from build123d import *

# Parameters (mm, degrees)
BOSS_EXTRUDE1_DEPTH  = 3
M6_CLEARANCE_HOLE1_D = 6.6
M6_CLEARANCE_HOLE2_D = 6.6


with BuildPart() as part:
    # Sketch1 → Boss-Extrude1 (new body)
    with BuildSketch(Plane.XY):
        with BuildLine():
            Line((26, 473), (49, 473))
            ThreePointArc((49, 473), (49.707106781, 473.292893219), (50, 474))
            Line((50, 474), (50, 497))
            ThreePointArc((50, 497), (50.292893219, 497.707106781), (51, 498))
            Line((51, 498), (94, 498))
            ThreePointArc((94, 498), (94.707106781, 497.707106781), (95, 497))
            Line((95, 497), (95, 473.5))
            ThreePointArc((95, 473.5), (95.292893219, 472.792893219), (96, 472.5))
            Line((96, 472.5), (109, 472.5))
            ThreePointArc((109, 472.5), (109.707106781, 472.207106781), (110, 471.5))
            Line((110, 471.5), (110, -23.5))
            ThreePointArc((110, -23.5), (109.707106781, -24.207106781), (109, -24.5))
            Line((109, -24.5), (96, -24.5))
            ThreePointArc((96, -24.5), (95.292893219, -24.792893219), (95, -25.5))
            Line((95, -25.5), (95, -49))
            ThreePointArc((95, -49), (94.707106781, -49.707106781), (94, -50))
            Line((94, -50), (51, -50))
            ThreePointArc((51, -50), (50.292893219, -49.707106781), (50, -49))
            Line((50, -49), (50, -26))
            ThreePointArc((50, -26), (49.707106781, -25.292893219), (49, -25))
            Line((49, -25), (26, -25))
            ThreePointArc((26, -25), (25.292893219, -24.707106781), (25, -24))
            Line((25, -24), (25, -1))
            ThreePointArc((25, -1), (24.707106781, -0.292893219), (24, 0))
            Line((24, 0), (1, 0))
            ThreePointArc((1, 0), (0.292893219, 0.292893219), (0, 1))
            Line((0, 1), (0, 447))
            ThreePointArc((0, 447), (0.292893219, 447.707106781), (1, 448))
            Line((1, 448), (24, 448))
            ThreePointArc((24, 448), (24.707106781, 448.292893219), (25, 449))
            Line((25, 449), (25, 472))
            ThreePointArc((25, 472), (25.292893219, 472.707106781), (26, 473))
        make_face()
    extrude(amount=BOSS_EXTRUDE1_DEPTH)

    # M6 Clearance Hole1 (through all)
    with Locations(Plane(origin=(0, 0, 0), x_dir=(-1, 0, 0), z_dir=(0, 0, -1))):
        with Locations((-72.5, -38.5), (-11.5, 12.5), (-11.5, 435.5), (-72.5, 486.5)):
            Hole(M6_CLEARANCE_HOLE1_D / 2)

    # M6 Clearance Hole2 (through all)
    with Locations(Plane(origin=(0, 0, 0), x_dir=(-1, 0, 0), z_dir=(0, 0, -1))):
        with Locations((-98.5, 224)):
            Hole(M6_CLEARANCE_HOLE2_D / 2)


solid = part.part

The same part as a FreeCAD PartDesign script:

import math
import FreeCAD as App
import Part
import Sketcher

V = App.Vector
Q = App.Units.Quantity

doc = App.newDocument("Part")
params = doc.addObject("Spreadsheet::Sheet", "Params")
for row, (alias, value) in enumerate([
    ("sketch1_radius", "1 mm"),
    ("sketch1_width", "23 mm"),
    ("sketch1_width2", "43 mm"),
    ("sketch1_width3", "13 mm"),
    ("sketch1_height", "446 mm"),
    ("pad1_length", "3 mm"),
    ("sketch2_diameter", "6.6 mm"),
    ("hole_diameter", "6.6 mm"),
    ("sketch3_diameter", "6.6 mm"),
    ("hole2_diameter", "6.6 mm"),
], start=1):
    params.set(f"A{row}", alias)
    params.set(f"B{row}", "=" + value)
    params.setAlias(f"B{row}", alias)

body = doc.addObject("PartDesign::Body", "Body")

# Sketch on XY plane
sketch1 = body.newObject("Sketcher::SketchObject", "Sketch")
sketch1.AttachmentSupport = (doc.getObject("XY_Plane"), [""])
sketch1.MapMode = "FlatFace"
sketch1.addGeometry(Part.LineSegment(V(49, 473, 0), V(26, 473, 0)), False)
sketch1.addGeometry(Part.ArcOfCircle(Part.Circle(V(26, 472, 0), V(0, 0, 1), 1), math.radians(90), math.radians(180)), False)
sketch1.addGeometry(Part.LineSegment(V(25, 472, 0), V(25, 449, 0)), False)
sketch1.addGeometry(Part.ArcOfCircle(Part.Circle(V(24, 449, 0), V(0, 0, 1), 1), math.radians(-90), math.radians(0)), False)
sketch1.addGeometry(Part.LineSegment(V(24, 448, 0), V(1, 448, 0)), False)
sketch1.addGeometry(Part.ArcOfCircle(Part.Circle(V(1, 447, 0), V(0, 0, 1), 1), math.radians(90), math.radians(180)), False)
sketch1.addGeometry(Part.LineSegment(V(0, 447, 0), V(0, 1, 0)), False)
sketch1.addGeometry(Part.ArcOfCircle(Part.Circle(V(1, 1, 0), V(0, 0, 1), 1), math.radians(-180), math.radians(-90)), False)
sketch1.addGeometry(Part.LineSegment(V(1, 0, 0), V(24, 0, 0)), False)
sketch1.addGeometry(Part.ArcOfCircle(Part.Circle(V(24, -1, 0), V(0, 0, 1), 1), math.radians(0), math.radians(90)), False)
sketch1.addGeometry(Part.LineSegment(V(25, -1, 0), V(25, -24, 0)), False)
sketch1.addGeometry(Part.ArcOfCircle(Part.Circle(V(26, -24, 0), V(0, 0, 1), 1), math.radians(-180), math.radians(-90)), False)
sketch1.addGeometry(Part.LineSegment(V(26, -25, 0), V(49, -25, 0)), False)
sketch1.addGeometry(Part.ArcOfCircle(Part.Circle(V(49, -26, 0), V(0, 0, 1), 1), math.radians(0), math.radians(90)), False)
sketch1.addGeometry(Part.LineSegment(V(50, -26, 0), V(50, -49, 0)), False)
sketch1.addGeometry(Part.ArcOfCircle(Part.Circle(V(51, -49, 0), V(0, 0, 1), 1), math.radians(-180), math.radians(-90)), False)
sketch1.addGeometry(Part.LineSegment(V(51, -50, 0), V(94, -50, 0)), False)
sketch1.addGeometry(Part.ArcOfCircle(Part.Circle(V(94, -49, 0), V(0, 0, 1), 1), math.radians(-90), math.radians(0)), False)
sketch1.addGeometry(Part.LineSegment(V(95, -49, 0), V(95, -25.5, 0)), False)
sketch1.addGeometry(Part.ArcOfCircle(Part.Circle(V(96, -25.5, 0), V(0, 0, 1), 1), math.radians(90), math.radians(180)), False)
sketch1.addGeometry(Part.LineSegment(V(96, -24.5, 0), V(109, -24.5, 0)), False)
sketch1.addGeometry(Part.ArcOfCircle(Part.Circle(V(109, -23.5, 0), V(0, 0, 1), 1), math.radians(-90), math.radians(0)), False)
sketch1.addGeometry(Part.LineSegment(V(110, -23.5, 0), V(110, 471.5, 0)), False)
sketch1.addGeometry(Part.ArcOfCircle(Part.Circle(V(109, 471.5, 0), V(0, 0, 1), 1), math.radians(0), math.radians(90)), False)
sketch1.addGeometry(Part.LineSegment(V(109, 472.5, 0), V(96, 472.5, 0)), False)
sketch1.addGeometry(Part.ArcOfCircle(Part.Circle(V(96, 473.5, 0), V(0, 0, 1), 1), math.radians(-180), math.radians(-90)), False)
sketch1.addGeometry(Part.LineSegment(V(95, 473.5, 0), V(95, 497, 0)), False)
sketch1.addGeometry(Part.ArcOfCircle(Part.Circle(V(94, 497, 0), V(0, 0, 1), 1), math.radians(0), math.radians(90)), False)
sketch1.addGeometry(Part.LineSegment(V(94, 498, 0), V(51, 498, 0)), False)
sketch1.addGeometry(Part.ArcOfCircle(Part.Circle(V(51, 497, 0), V(0, 0, 1), 1), math.radians(90), math.radians(180)), False)
sketch1.addGeometry(Part.LineSegment(V(50, 497, 0), V(50, 474, 0)), False)
sketch1.addGeometry(Part.ArcOfCircle(Part.Circle(V(49, 474, 0), V(0, 0, 1), 1), math.radians(-90), math.radians(0)), False)
sketch1.addConstraint(Sketcher.Constraint("Tangent", 0, 2, 1, 1))
sketch1.addConstraint(Sketcher.Constraint("Tangent", 1, 2, 2, 1))
sketch1.addConstraint(Sketcher.Constraint("Tangent", 2, 2, 3, 2))
sketch1.addConstraint(Sketcher.Constraint("Tangent", 3, 1, 4, 1))
sketch1.addConstraint(Sketcher.Constraint("Tangent", 4, 2, 5, 1))
sketch1.addConstraint(Sketcher.Constraint("Tangent", 5, 2, 6, 1))
sketch1.addConstraint(Sketcher.Constraint("Tangent", 6, 2, 7, 1))
sketch1.addConstraint(Sketcher.Constraint("Tangent", 7, 2, 8, 1))
sketch1.addConstraint(Sketcher.Constraint("Tangent", 8, 2, 9, 2))
sketch1.addConstraint(Sketcher.Constraint("Tangent", 9, 1, 10, 1))
sketch1.addConstraint(Sketcher.Constraint("Tangent", 10, 2, 11, 1))
sketch1.addConstraint(Sketcher.Constraint("Tangent", 11, 2, 12, 1))
sketch1.addConstraint(Sketcher.Constraint("Tangent", 12, 2, 13, 2))
sketch1.addConstraint(Sketcher.Constraint("Tangent", 13, 1, 14, 1))
sketch1.addConstraint(Sketcher.Constraint("Tangent", 14, 2, 15, 1))
sketch1.addConstraint(Sketcher.Constraint("Tangent", 15, 2, 16, 1))
sketch1.addConstraint(Sketcher.Constraint("Tangent", 16, 2, 17, 1))
sketch1.addConstraint(Sketcher.Constraint("Tangent", 17, 2, 18, 1))
sketch1.addConstraint(Sketcher.Constraint("Tangent", 18, 2, 19, 2))
sketch1.addConstraint(Sketcher.Constraint("Tangent", 19, 1, 20, 1))
sketch1.addConstraint(Sketcher.Constraint("Tangent", 20, 2, 21, 1))
sketch1.addConstraint(Sketcher.Constraint("Tangent", 21, 2, 22, 1))
sketch1.addConstraint(Sketcher.Constraint("Tangent", 22, 2, 23, 1))
sketch1.addConstraint(Sketcher.Constraint("Tangent", 23, 2, 24, 1))
sketch1.addConstraint(Sketcher.Constraint("Tangent", 24, 2, 25, 2))
sketch1.addConstraint(Sketcher.Constraint("Tangent", 25, 1, 26, 1))
sketch1.addConstraint(Sketcher.Constraint("Tangent", 26, 2, 27, 1))
sketch1.addConstraint(Sketcher.Constraint("Tangent", 27, 2, 28, 1))
sketch1.addConstraint(Sketcher.Constraint("Tangent", 28, 2, 29, 1))
sketch1.addConstraint(Sketcher.Constraint("Tangent", 29, 2, 30, 1))
sketch1.addConstraint(Sketcher.Constraint("Tangent", 30, 2, 31, 2))
sketch1.addConstraint(Sketcher.Constraint("Tangent", 31, 1, 0, 1))
sketch1.addConstraint(Sketcher.Constraint("Horizontal", 0))
sketch1.addConstraint(Sketcher.Constraint("Vertical", 2))
sketch1.addConstraint(Sketcher.Constraint("Horizontal", 4))
sketch1.addConstraint(Sketcher.Constraint("Vertical", 6))
sketch1.addConstraint(Sketcher.Constraint("Horizontal", 8))
sketch1.addConstraint(Sketcher.Constraint("Vertical", 10))
sketch1.addConstraint(Sketcher.Constraint("Horizontal", 12))
sketch1.addConstraint(Sketcher.Constraint("Vertical", 14))
sketch1.addConstraint(Sketcher.Constraint("Horizontal", 16))
sketch1.addConstraint(Sketcher.Constraint("Vertical", 18))
sketch1.addConstraint(Sketcher.Constraint("Horizontal", 20))
sketch1.addConstraint(Sketcher.Constraint("Vertical", 22))
sketch1.addConstraint(Sketcher.Constraint("Horizontal", 24))
sketch1.addConstraint(Sketcher.Constraint("Vertical", 26))
sketch1.addConstraint(Sketcher.Constraint("Horizontal", 28))
sketch1.addConstraint(Sketcher.Constraint("Vertical", 30))
sketch1.addConstraint(Sketcher.Constraint("Equal", 1, 3))
sketch1.addConstraint(Sketcher.Constraint("Equal", 3, 5))
sketch1.addConstraint(Sketcher.Constraint("Equal", 5, 7))
sketch1.addConstraint(Sketcher.Constraint("Equal", 7, 9))
sketch1.addConstraint(Sketcher.Constraint("Equal", 9, 11))
sketch1.addConstraint(Sketcher.Constraint("Equal", 11, 13))
sketch1.addConstraint(Sketcher.Constraint("Equal", 13, 15))
sketch1.addConstraint(Sketcher.Constraint("Equal", 15, 17))
sketch1.addConstraint(Sketcher.Constraint("Equal", 17, 19))
sketch1.addConstraint(Sketcher.Constraint("Equal", 19, 21))
sketch1.addConstraint(Sketcher.Constraint("Equal", 21, 23))
sketch1.addConstraint(Sketcher.Constraint("Equal", 23, 25))
sketch1.addConstraint(Sketcher.Constraint("Equal", 25, 27))
sketch1.addConstraint(Sketcher.Constraint("Equal", 27, 29))
sketch1.addConstraint(Sketcher.Constraint("Equal", 29, 31))
sketch1.addConstraint(Sketcher.Constraint("PointOnObject", 5, 2, -2))
sketch1.addConstraint(Sketcher.Constraint("PointOnObject", 7, 2, -1))
sketch1.addConstraint(Sketcher.Constraint("Vertical", 3, 3, 9, 3))
sketch1.addConstraint(Sketcher.Constraint("Vertical", 19, 3, 25, 3))
sketch1.addConstraint(Sketcher.Constraint("Vertical", 15, 3, 29, 3))
sketch1.addConstraint(Sketcher.Constraint("Equal", 0, 4))
sketch1.addConstraint(Sketcher.Constraint("Equal", 12, 2))
sketch1.addConstraint(Sketcher.Constraint("Equal", 2, 10))
sketch1.addConstraint(Sketcher.Constraint("Equal", 10, 14))
sketch1.addConstraint(Sketcher.Constraint("Equal", 18, 26))
sketch1.addConstraint(Sketcher.Constraint("Equal", 14, 30))
sketch1.addConstraint(Sketcher.Constraint("Radius", 1, Q("1 mm")))
sketch1.addConstraint(Sketcher.Constraint("DistanceX", 0, 2, 0, 1, Q("23 mm")))
sketch1.addConstraint(Sketcher.Constraint("DistanceX", 16, 1, 16, 2, Q("43 mm")))
sketch1.addConstraint(Sketcher.Constraint("DistanceX", 20, 1, 20, 2, Q("13 mm")))
sketch1.addConstraint(Sketcher.Constraint("DistanceY", 6, 2, 6, 1, Q("446 mm")))
sketch1.addConstraint(Sketcher.Constraint("DistanceY", 22, 1, 22, 2, Q("495 mm")))
sketch1.setExpression("Constraints[74]", "Params.sketch1_radius")
sketch1.setExpression("Constraints[75]", "Params.sketch1_width")
sketch1.setExpression("Constraints[76]", "Params.sketch1_width2")
sketch1.setExpression("Constraints[77]", "Params.sketch1_width3")
sketch1.setExpression("Constraints[78]", "Params.sketch1_height")
pad1 = body.newObject("PartDesign::Pad", "Pad")
pad1.Profile = sketch1
pad1.setExpression("Length", "Params.pad1_length")

# Sketch on XY plane
sketch2 = body.newObject("Sketcher::SketchObject", "Sketch001")
sketch2.AttachmentSupport = (doc.getObject("XY_Plane"), [""])
sketch2.MapMode = "FlatFace"
sketch2.addGeometry(Part.Circle(V(72.5, -38.5, 0), V(0, 0, 1), 3.3), False)
sketch2.addGeometry(Part.Circle(V(11.5, 12.5, 0), V(0, 0, 1), 3.3), False)
sketch2.addGeometry(Part.Circle(V(11.5, 435.5, 0), V(0, 0, 1), 3.3), False)
sketch2.addGeometry(Part.Circle(V(72.5, 486.5, 0), V(0, 0, 1), 3.3), False)
sketch2.addConstraint(Sketcher.Constraint("Equal", 0, 1))
sketch2.addConstraint(Sketcher.Constraint("Equal", 1, 2))
sketch2.addConstraint(Sketcher.Constraint("Equal", 2, 3))
sketch2.addConstraint(Sketcher.Constraint("Vertical", 1, 3, 2, 3))
sketch2.addConstraint(Sketcher.Constraint("Vertical", 0, 3, 3, 3))
sketch2.addConstraint(Sketcher.Constraint("Diameter", 0, Q("6.6 mm")))
sketch2.addConstraint(Sketcher.Constraint("DistanceX", 1, 3, 0, 3, Q("61 mm")))
sketch2.addConstraint(Sketcher.Constraint("DistanceY", 0, 3, 1, 3, Q("51 mm")))
sketch2.addConstraint(Sketcher.Constraint("DistanceY", 1, 3, 2, 3, Q("423 mm")))
sketch2.addConstraint(Sketcher.Constraint("DistanceY", 2, 3, 3, 3, Q("51 mm")))
sketch2.addConstraint(Sketcher.Constraint("DistanceX", -1, 1, 0, 3, Q("72.5 mm")))
sketch2.addConstraint(Sketcher.Constraint("DistanceY", 0, 3, -1, 1, Q("38.5 mm")))
sketch2.setExpression("Constraints[5]", "Params.sketch2_diameter")
doc.recompute()
hole = body.newObject("PartDesign::Hole", "Hole")
hole.Profile = sketch2
hole.ThreadType = "None"
hole.setExpression("Diameter", "Params.hole_diameter")
hole.DepthType = "ThroughAll"
hole.Reversed = True

# Sketch on XY plane
sketch3 = body.newObject("Sketcher::SketchObject", "Sketch002")
sketch3.AttachmentSupport = (doc.getObject("XY_Plane"), [""])
sketch3.MapMode = "FlatFace"
sketch3.addGeometry(Part.Circle(V(98.5, 224, 0), V(0, 0, 1), 3.3), False)
sketch3.addConstraint(Sketcher.Constraint("Diameter", 0, Q("6.6 mm")))
sketch3.addConstraint(Sketcher.Constraint("DistanceY", -1, 1, 0, 3, Q("224 mm")))
sketch3.addConstraint(Sketcher.Constraint("DistanceX", -1, 1, 0, 3, Q("98.5 mm")))
sketch3.setExpression("Constraints[0]", "Params.sketch3_diameter")
doc.recompute()
hole2 = body.newObject("PartDesign::Hole", "Hole001")
hole2.Profile = sketch3
hole2.ThreadType = "None"
hole2.setExpression("Diameter", "Params.hole2_diameter")
hole2.DepthType = "ThroughAll"
hole2.Reversed = True

doc.recompute()
